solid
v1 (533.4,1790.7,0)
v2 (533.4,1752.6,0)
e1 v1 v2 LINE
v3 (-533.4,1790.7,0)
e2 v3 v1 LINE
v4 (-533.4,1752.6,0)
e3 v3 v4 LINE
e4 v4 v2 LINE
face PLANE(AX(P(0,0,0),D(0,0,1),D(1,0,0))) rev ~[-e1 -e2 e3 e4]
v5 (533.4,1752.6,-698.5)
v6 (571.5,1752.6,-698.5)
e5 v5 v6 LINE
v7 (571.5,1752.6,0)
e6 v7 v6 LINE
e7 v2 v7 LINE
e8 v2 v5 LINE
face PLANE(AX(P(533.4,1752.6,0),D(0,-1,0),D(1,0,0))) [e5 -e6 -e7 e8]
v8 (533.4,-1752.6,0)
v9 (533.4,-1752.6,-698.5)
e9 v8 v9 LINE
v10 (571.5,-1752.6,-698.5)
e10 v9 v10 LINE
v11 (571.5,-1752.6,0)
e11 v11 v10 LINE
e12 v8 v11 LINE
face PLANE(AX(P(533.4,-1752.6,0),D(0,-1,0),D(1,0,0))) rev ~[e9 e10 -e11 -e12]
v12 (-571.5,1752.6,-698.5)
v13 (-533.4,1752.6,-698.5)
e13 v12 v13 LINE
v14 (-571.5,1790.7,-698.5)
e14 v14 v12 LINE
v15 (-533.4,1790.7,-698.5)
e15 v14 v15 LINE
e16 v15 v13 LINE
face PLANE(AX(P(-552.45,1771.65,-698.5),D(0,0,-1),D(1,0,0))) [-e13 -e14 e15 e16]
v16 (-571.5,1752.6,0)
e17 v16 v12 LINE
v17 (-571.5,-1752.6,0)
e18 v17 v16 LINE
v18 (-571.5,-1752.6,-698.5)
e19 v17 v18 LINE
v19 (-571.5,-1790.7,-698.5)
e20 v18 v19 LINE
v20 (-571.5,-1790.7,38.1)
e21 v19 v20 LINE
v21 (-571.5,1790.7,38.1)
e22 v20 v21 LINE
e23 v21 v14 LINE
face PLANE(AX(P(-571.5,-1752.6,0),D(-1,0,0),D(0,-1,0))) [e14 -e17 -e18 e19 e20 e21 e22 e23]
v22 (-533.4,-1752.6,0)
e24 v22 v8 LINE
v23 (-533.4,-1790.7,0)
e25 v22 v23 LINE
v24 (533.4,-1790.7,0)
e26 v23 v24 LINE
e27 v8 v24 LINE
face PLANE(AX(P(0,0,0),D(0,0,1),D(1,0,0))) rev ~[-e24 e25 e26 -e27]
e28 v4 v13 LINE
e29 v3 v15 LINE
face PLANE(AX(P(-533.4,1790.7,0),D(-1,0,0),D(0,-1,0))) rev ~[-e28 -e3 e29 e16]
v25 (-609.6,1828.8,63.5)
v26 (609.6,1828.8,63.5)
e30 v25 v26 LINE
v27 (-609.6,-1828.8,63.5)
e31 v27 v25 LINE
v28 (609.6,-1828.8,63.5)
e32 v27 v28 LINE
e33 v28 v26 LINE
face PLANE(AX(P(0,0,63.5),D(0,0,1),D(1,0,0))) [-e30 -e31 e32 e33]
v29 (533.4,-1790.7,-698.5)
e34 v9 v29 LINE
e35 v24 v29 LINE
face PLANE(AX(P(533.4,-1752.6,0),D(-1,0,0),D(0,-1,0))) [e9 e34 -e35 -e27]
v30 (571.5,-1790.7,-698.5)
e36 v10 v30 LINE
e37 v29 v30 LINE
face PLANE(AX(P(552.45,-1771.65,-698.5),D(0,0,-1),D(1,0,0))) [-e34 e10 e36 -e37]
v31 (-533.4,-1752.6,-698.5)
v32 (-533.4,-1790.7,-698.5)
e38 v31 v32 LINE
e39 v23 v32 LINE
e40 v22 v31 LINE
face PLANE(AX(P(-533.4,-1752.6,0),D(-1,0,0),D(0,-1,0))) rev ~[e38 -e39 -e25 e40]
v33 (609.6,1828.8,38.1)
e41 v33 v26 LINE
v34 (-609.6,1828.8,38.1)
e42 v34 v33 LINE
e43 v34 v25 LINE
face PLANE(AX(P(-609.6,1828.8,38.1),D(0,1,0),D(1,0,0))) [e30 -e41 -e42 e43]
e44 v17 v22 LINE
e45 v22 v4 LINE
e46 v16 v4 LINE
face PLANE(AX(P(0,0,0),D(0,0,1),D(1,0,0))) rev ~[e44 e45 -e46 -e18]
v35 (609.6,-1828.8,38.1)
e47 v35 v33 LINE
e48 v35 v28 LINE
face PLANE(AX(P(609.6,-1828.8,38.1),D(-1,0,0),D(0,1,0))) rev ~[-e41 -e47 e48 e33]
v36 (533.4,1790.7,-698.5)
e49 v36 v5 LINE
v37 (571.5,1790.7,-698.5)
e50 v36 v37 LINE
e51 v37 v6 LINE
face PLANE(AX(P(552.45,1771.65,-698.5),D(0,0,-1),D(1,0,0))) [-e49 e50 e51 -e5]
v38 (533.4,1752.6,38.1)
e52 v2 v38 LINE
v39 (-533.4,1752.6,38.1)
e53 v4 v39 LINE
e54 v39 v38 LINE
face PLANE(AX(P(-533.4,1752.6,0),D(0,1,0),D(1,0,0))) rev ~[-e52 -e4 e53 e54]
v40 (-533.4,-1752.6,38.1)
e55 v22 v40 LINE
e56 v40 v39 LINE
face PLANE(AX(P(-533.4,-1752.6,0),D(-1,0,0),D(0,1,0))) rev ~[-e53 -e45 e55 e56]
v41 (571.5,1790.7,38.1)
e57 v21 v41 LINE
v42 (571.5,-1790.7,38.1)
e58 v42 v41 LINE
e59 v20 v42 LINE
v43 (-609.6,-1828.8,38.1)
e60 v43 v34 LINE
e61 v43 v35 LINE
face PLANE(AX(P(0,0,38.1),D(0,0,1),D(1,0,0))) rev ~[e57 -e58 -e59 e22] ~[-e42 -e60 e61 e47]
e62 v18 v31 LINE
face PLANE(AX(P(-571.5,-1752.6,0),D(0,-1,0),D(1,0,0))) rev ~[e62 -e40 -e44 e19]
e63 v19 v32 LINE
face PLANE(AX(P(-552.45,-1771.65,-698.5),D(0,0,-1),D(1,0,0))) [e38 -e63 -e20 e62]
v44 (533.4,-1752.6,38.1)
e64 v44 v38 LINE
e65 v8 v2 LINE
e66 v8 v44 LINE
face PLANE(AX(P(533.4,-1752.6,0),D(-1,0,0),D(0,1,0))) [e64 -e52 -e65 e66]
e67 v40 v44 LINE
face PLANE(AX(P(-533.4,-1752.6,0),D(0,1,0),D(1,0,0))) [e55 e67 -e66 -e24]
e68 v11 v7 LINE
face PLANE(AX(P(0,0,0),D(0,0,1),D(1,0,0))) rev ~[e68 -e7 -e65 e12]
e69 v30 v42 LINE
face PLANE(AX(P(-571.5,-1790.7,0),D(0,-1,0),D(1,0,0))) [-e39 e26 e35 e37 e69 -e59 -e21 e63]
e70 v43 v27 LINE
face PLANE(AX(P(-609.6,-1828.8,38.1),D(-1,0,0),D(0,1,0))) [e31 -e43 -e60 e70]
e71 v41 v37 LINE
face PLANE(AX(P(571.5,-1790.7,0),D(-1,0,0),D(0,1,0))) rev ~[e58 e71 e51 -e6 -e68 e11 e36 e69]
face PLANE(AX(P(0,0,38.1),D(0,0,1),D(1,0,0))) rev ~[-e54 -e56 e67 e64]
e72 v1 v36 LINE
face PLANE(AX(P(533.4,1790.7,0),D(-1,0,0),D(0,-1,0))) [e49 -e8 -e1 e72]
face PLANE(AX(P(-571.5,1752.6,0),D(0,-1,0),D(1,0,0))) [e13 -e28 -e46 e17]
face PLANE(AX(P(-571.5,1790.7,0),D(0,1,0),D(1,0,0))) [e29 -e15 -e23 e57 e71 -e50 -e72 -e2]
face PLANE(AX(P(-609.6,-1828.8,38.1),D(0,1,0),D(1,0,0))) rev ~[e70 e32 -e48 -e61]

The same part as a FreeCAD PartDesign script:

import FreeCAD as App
import Part
import Sketcher
from FreeCAD import Vector
Q = App.Units.Quantity

doc = App.newDocument("Part")
body = doc.addObject("PartDesign::Body", "Body")

# Sketch on XY plane
sketch1 = body.newObject("Sketcher::SketchObject", "Sketch")
sketch1.AttachmentSupport = (doc.getObject("XY_Plane"), [""])
sketch1.MapMode = "FlatFace"
sketch1.addGeometry([
    Part.LineSegment(Vector(-572, 1791, 0), Vector(-572, -1791, 0)),  # 0
    Part.LineSegment(Vector(-572, -1791, 0), Vector(572, -1791, 0)),  # 1
    Part.LineSegment(Vector(572, -1791, 0), Vector(572, 1791, 0)),  # 2
    Part.LineSegment(Vector(572, 1791, 0), Vector(-572, 1791, 0)),  # 3
    Part.LineSegment(Vector(533, -1753, 0), Vector(-533, -1753, 0)),  # 4
    Part.LineSegment(Vector(-533, -1753, 0), Vector(-533, 1753, 0)),  # 5
    Part.LineSegment(Vector(-533, 1753, 0), Vector(533, 1753, 0)),  # 6
    Part.LineSegment(Vector(533, 1753, 0), Vector(533, -1753, 0)),  # 7
], False)
sketch1.addConstraint([
    Sketcher.Constraint("Coincident", 0, 2, 1, 1),
    Sketcher.Constraint("Coincident", 1, 2, 2, 1),
    Sketcher.Constraint("Coincident", 2, 2, 3, 1),
    Sketcher.Constraint("Coincident", 3, 2, 0, 1),
    Sketcher.Constraint("Coincident", 4, 2, 5, 1),
    Sketcher.Constraint("Coincident", 5, 2, 6, 1),
    Sketcher.Constraint("Coincident", 6, 2, 7, 1),
    Sketcher.Constraint("Coincident", 7, 2, 4, 1),
    Sketcher.Constraint("Vertical", 0),
    Sketcher.Constraint("Horizontal", 1),
    Sketcher.Constraint("Vertical", 2),
    Sketcher.Constraint("Horizontal", 3),
    Sketcher.Constraint("Horizontal", 4),
    Sketcher.Constraint("Vertical", 5),
    Sketcher.Constraint("Horizontal", 6),
    Sketcher.Constraint("Vertical", 7),
    Sketcher.Constraint("Symmetric", 0, 2, 2, 2, -1, 1),
    Sketcher.Constraint("Symmetric", 4, 2, 6, 2, -1, 1),
    Sketcher.Constraint("DistanceX", 1, 1, 1, 2, Q("45 in")),
    Sketcher.Constraint("DistanceX", 4, 2, 4, 1, Q("42 in")),
    Sketcher.Constraint("DistanceY", 0, 2, 0, 1, Q("141 in")),
    Sketcher.Constraint("DistanceY", 5, 1, 5, 2, Q("138 in")),
])
pad1 = body.newObject("PartDesign::Pad", "Pad")
pad1.Profile = sketch1
pad1.Length = Q("1.5 in")

# Sketch on XY plane
sketch2 = body.newObject("Sketcher::SketchObject", "Sketch001")
sketch2.AttachmentSupport = (doc.getObject("XY_Plane"), [""])
sketch2.MapMode = "FlatFace"
sketch2.addGeometry([
    Part.LineSegment(Vector(-572, -1791, 0), Vector(-572, -1753, 0)),  # 0
    Part.LineSegment(Vector(-572, -1753, 0), Vector(-533, -1753, 0)),  # 1
    Part.LineSegment(Vector(-533, -1753, 0), Vector(-533, -1791, 0)),  # 2
    Part.LineSegment(Vector(-533, -1791, 0), Vector(-572, -1791, 0)),  # 3
    Part.LineSegment(Vector(533, -1791, 0), Vector(533, -1753, 0)),  # 4
    Part.LineSegment(Vector(533, -1753, 0), Vector(572, -1753, 0)),  # 5
    Part.LineSegment(Vector(572, -1753, 0), Vector(572, -1791, 0)),  # 6
    Part.LineSegment(Vector(572, -1791, 0), Vector(533, -1791, 0)),  # 7
    Part.LineSegment(Vector(-572, 1753, 0), Vector(-572, 1791, 0)),  # 8
    Part.LineSegment(Vector(-572, 1791, 0), Vector(-533, 1791, 0)),  # 9
    Part.LineSegment(Vector(-533, 1791, 0), Vector(-533, 1753, 0)),  # 10
    Part.LineSegment(Vector(-533, 1753, 0), Vector(-572, 1753, 0)),  # 11
    Part.LineSegment(Vector(533, 1753, 0), Vector(533, 1791, 0)),  # 12
    Part.LineSegment(Vector(533, 1791, 0), Vector(572, 1791, 0)),  # 13
    Part.LineSegment(Vector(572, 1791, 0), Vector(572, 1753, 0)),  # 14
    Part.LineSegment(Vector(572, 1753, 0), Vector(533, 1753, 0)),  # 15
], False)
sketch2.addConstraint([
    Sketcher.Constraint("Coincident", 0, 2, 1, 1),
    Sketcher.Constraint("Coincident", 1, 2, 2, 1),
    Sketcher.Constraint("Coincident", 2, 2, 3, 1),
    Sketcher.Constraint("Coincident", 3, 2, 0, 1),
    Sketcher.Constraint("Coincident", 4, 2, 5, 1),
    Sketcher.Constraint("Coincident", 5, 2, 6, 1),
    Sketcher.Constraint("Coincident", 6, 2, 7, 1),
    Sketcher.Constraint("Coincident", 7, 2, 4, 1),
    Sketcher.Constraint("Coincident", 8, 2, 9, 1),
    Sketcher.Constraint("Coincident", 9, 2, 10, 1),
    Sketcher.Constraint("Coincident", 10, 2, 11, 1),
    Sketcher.Constraint("Coincident", 11, 2, 8, 1),
    Sketcher.Constraint("Coincident", 12, 2, 13, 1),
    Sketcher.Constraint("Coincident", 13, 2, 14, 1),
    Sketcher.Constraint("Coincident", 14, 2, 15, 1),
    Sketcher.Constraint("Coincident", 15, 2, 12, 1),
    Sketcher.Constraint("Vertical", 0),
    Sketcher.Constraint("Horizontal", 1),
    Sketcher.Constraint("Vertical", 2),
    Sketcher.Constraint("Horizontal", 3),
    Sketcher.Constraint("Vertical", 4),
    Sketcher.Constraint("Horizontal", 5),
    Sketcher.Constraint("Vertical", 6),
    Sketcher.Constraint("Horizontal", 7),
    Sketcher.Constraint("Vertical", 8),
    Sketcher.Constraint("Horizontal", 9),
    Sketcher.Constraint("Vertical", 10),
    Sketcher.Constraint("Horizontal", 11),
    Sketcher.Constraint("Vertical", 12),
    Sketcher.Constraint("Horizontal", 13),
    Sketcher.Constraint("Vertical", 14),
    Sketcher.Constraint("Horizontal", 15),
    Sketcher.Constraint("Symmetric", 6, 2, 8, 2, -1, 1),
    Sketcher.Constraint("Symmetric", 4, 2, 10, 2, -1, 1),
    Sketcher.Constraint("Symmetric", 2, 2, 12, 2, -1, 1),
    Sketcher.Constraint("Symmetric", 0, 2, 14, 2, -1, 1),
    Sketcher.Constraint("Symmetric", 1, 2, 4, 2, -2),
    Sketcher.Constraint("Symmetric", 3, 2, 6, 2, -2),
    Sketcher.Constraint("Equal", 15, 0),
    Sketcher.Constraint("DistanceX", 1, 1, 1, 2, Q("1.5 in")),
    Sketcher.Constraint("DistanceY", 0, 2, -1, 1, Q("69 in")),
    Sketcher.Constraint("DistanceX", 1, 2, -1, 1, Q("21 in")),
])
pad2 = body.newObject("PartDesign::Pad", "Pad001")
pad2.Profile = sketch2
pad2.Length = Q("27.5 in")
pad2.Reversed = True

# Sketch on XY plane
sketch3 = body.newObject("Sketcher::SketchObject", "Sketch002")
sketch3.AttachmentSupport = (doc.getObject("XY_Plane"), [""])
sketch3.MapMode = "FlatFace"
sketch3.AttachmentOffset = App.Placement(Vector(0, 0, 1.5 * 25.4), App.Rotation())
sketch3.addGeometry([
    Part.LineSegment(Vector(-610, 1829, 0), Vector(-610, -1829, 0)),
    Part.LineSegment(Vector(-610, -1829, 0), Vector(610, -1829, 0)),
    Part.LineSegment(Vector(610, -1829, 0), Vector(610, 1829, 0)),
    Part.LineSegment(Vector(610, 1829, 0), Vector(-610, 1829, 0)),
], False)
sketch3.addConstraint([
    Sketcher.Constraint("Coincident", 0, 2, 1, 1),
    Sketcher.Constraint("Coincident", 1, 2, 2, 1),
    Sketcher.Constraint("Coincident", 2, 2, 3, 1),
    Sketcher.Constraint("Coincident", 3, 2, 0, 1),
    Sketcher.Constraint("Vertical", 0),
    Sketcher.Constraint("Horizontal", 1),
    Sketcher.Constraint("Vertical", 2),
    Sketcher.Constraint("Horizontal", 3),
    Sketcher.Constraint("Symmetric", 0, 2, 2, 2, -1, 1),
    Sketcher.Constraint("DistanceX", 1, 1, 1, 2, Q("48 in")),
    Sketcher.Constraint("DistanceY", 0, 2, 0, 1, Q("144 in")),
])
pad3 = body.newObject("PartDesign::Pad", "Pad002")
pad3.Profile = sketch3
pad3.Length = Q("1 in")

doc.recompute()
